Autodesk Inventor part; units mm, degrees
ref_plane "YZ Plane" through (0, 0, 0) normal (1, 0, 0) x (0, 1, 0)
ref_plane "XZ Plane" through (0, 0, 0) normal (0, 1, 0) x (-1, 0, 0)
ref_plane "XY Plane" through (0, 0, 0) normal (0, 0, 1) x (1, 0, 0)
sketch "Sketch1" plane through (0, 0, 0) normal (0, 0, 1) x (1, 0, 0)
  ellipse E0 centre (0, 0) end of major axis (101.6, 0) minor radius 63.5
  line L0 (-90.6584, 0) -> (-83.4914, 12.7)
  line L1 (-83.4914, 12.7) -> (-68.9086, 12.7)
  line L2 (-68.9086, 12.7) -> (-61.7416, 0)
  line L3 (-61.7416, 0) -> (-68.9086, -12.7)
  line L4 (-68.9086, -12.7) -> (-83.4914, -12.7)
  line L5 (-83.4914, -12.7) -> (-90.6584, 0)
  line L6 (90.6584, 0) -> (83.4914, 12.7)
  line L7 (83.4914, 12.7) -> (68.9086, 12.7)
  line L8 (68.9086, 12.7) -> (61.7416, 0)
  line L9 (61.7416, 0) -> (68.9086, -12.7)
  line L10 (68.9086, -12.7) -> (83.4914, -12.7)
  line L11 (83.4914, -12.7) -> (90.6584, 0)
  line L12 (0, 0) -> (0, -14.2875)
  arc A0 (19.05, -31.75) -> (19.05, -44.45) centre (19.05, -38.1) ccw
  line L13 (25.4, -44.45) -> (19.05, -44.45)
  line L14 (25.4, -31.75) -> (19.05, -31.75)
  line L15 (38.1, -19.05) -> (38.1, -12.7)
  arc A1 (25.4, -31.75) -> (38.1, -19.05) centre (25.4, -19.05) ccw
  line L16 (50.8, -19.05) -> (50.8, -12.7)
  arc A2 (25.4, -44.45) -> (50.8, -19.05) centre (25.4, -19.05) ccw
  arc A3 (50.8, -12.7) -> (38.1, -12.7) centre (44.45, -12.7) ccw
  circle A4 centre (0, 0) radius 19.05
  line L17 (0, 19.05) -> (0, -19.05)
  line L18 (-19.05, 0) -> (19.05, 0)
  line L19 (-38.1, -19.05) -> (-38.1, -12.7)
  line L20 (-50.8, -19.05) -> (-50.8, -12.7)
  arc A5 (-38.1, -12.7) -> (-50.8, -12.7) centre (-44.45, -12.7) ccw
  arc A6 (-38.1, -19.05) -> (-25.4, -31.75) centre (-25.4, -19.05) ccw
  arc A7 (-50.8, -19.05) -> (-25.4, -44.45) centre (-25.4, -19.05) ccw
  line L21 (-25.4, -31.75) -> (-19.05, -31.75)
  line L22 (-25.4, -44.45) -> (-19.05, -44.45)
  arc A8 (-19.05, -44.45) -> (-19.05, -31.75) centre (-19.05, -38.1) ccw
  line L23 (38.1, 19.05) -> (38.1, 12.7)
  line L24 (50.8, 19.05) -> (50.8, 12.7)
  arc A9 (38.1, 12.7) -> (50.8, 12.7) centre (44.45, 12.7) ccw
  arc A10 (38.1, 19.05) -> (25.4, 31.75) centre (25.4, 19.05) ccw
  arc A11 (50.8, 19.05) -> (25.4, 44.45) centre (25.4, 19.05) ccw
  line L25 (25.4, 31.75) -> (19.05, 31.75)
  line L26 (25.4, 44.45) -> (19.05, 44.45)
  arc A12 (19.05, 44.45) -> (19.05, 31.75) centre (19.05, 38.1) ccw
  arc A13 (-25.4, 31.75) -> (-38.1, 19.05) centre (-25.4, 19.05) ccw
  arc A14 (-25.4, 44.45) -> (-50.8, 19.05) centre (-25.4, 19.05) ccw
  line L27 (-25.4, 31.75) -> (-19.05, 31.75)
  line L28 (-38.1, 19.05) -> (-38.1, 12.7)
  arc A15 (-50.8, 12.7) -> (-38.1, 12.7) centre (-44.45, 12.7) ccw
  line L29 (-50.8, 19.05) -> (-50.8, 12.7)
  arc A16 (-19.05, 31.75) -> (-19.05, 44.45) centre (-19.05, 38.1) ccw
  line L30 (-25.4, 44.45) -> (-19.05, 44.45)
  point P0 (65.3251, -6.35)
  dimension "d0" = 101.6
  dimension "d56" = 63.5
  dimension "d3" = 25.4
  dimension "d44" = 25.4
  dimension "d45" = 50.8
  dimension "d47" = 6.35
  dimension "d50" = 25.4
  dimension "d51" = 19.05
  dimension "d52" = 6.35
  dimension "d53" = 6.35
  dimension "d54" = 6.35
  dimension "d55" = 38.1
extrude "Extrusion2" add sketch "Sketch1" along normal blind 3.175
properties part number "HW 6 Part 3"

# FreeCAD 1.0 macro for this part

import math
import FreeCAD as App
import Part
import Sketcher
from FreeCAD import Vector
Q = App.Units.Quantity

doc = App.newDocument("Part")
params = doc.addObject("Spreadsheet::Sheet", "Params")
for row, (alias, value) in enumerate([
    ("sketch1_radius", "1 in"),
    ("sketch1_diameter", "1.5 in"),
    ("sketch1_radius2", "0.5 in"),
    ("sketch1_width", "0.25 in"),
    ("pad1_length", "0.125 in"),
], start=1):
    params.set(f"A{row}", alias)
    params.set(f"B{row}", "=" + value)
    params.setAlias(f"B{row}", alias)

body = doc.addObject("PartDesign::Body", "Body")

# Sketch on XY plane
sketch1 = body.newObject("Sketcher::SketchObject", "Sketch")
sketch1.AttachmentSupport = (doc.getObject("XY_Plane"), [""])
sketch1.MapMode = "FlatFace"
sketch1.addGeometry([
    Part.Ellipse(Vector(101.6, 0, 0), Vector(0, 63.5, 0), Vector(0, 0, 0)),  # 0
    Part.LineSegment(Vector(-38.1, -12.7, 0), Vector(-38.1, -19.05, 0)),  # 1
    Part.ArcOfCircle(Part.Circle(Vector(-25.4, -19.05, 0), Vector(0, 0, 1), 12.7), math.radians(180), math.radians(270)),  # 2
    Part.LineSegment(Vector(-25.4, -31.75, 0), Vector(-19.05, -31.75, 0)),  # 3
    Part.ArcOfCircle(Part.Circle(Vector(-19.05, -38.1, 0), Vector(0, 0, 1), 6.35), math.radians(-90), math.radians(90)),  # 4
    Part.LineSegment(Vector(-19.05, -44.45, 0), Vector(-25.4, -44.45, 0)),  # 5
    Part.ArcOfCircle(Part.Circle(Vector(-25.4, -19.05, 0), Vector(0, 0, 1), 25.4), math.radians(180), math.radians(270)),  # 6
    Part.LineSegment(Vector(-50.8, -19.05, 0), Vector(-50.8, -12.7, 0)),  # 7
    Part.ArcOfCircle(Part.Circle(Vector(-44.45, -12.7, 0), Vector(0, 0, 1), 6.35), math.radians(0), math.radians(180)),  # 8
    Part.ArcOfCircle(Part.Circle(Vector(19.05, -38.1, 0), Vector(0, 0, 1), 6.35), math.radians(90), math.radians(270)),  # 9
    Part.LineSegment(Vector(19.05, -31.75, 0), Vector(25.4, -31.75, 0)),  # 10
    Part.ArcOfCircle(Part.Circle(Vector(25.4, -19.05, 0), Vector(0, 0, 1), 12.7), math.radians(-90), math.radians(0)),  # 11
    Part.LineSegment(Vector(38.1, -19.05, 0), Vector(38.1, -12.7, 0)),  # 12
    Part.ArcOfCircle(Part.Circle(Vector(44.45, -12.7, 0), Vector(0, 0, 1), 6.35), math.radians(0), math.radians(180)),  # 13
    Part.LineSegment(Vector(50.8, -12.7, 0), Vector(50.8, -19.05, 0)),  # 14
    Part.ArcOfCircle(Part.Circle(Vector(25.4, -19.05, 0), Vector(0, 0, 1), 25.4), math.radians(-90), math.radians(0)),  # 15
    Part.LineSegment(Vector(25.4, -44.45, 0), Vector(19.05, -44.45, 0)),  # 16
    Part.LineSegment(Vector(-83.4914, -12.7, 0), Vector(-90.6584, 0, 0)),  # 17
    Part.LineSegment(Vector(-90.6584, 0, 0), Vector(-83.4914, 12.7, 0)),  # 18
    Part.LineSegment(Vector(-83.4914, 12.7, 0), Vector(-68.9086, 12.7, 0)),  # 19
    Part.LineSegment(Vector(-68.9086, 12.7, 0), Vector(-61.7416, 0, 0)),  # 20
    Part.LineSegment(Vector(-61.7416, 0, 0), Vector(-68.9086, -12.7, 0)),  # 21
    Part.LineSegment(Vector(-68.9086, -12.7, 0), Vector(-83.4914, -12.7, 0)),  # 22
    Part.Circle(Vector(0, 0, 0), Vector(0, 0, 1), 19.05),  # 23
    Part.LineSegment(Vector(-19.05, 31.75, 0), Vector(-25.4, 31.75, 0)),  # 24
    Part.ArcOfCircle(Part.Circle(Vector(-25.4, 19.05, 0), Vector(0, 0, 1), 12.7), math.radians(90), math.radians(180)),  # 25
    Part.LineSegment(Vector(-38.1, 19.05, 0), Vector(-38.1, 12.7, 0)),  # 26
    Part.ArcOfCircle(Part.Circle(Vector(-44.45, 12.7, 0), Vector(0, 0, 1), 6.35), math.radians(180), math.radians(360)),  # 27
    Part.LineSegment(Vector(-50.8, 12.7, 0), Vector(-50.8, 19.05, 0)),  # 28
    Part.ArcOfCircle(Part.Circle(Vector(-25.4, 19.05, 0), Vector(0, 0, 1), 25.4), math.radians(90), math.radians(180)),  # 29
    Part.LineSegment(Vector(-25.4, 44.45, 0), Vector(-19.05, 44.45, 0)),  # 30
    Part.ArcOfCircle(Part.Circle(Vector(-19.05, 38.1, 0), Vector(0, 0, 1), 6.35), math.radians(-90), math.radians(90)),  # 31
    Part.LineSegment(Vector(38.1, 12.7, 0), Vector(38.1, 19.05, 0)),  # 32
    Part.ArcOfCircle(Part.Circle(Vector(25.4, 19.05, 0), Vector(0, 0, 1), 12.7), math.radians(0), math.radians(90)),  # 33
    Part.LineSegment(Vector(25.4, 31.75, 0), Vector(19.05, 31.75, 0)),  # 34
    Part.ArcOfCircle(Part.Circle(Vector(19.05, 38.1, 0), Vector(0, 0, 1), 6.35), math.radians(90), math.radians(270)),  # 35
    Part.LineSegment(Vector(19.05, 44.45, 0), Vector(25.4, 44.45, 0)),  # 36
    Part.ArcOfCircle(Part.Circle(Vector(25.4, 19.05, 0), Vector(0, 0, 1), 25.4), math.radians(0), math.radians(90)),  # 37
    Part.LineSegment(Vector(50.8, 19.05, 0), Vector(50.8, 12.7, 0)),  # 38
    Part.ArcOfCircle(Part.Circle(Vector(44.45, 12.7, 0), Vector(0, 0, 1), 6.35), math.radians(180), math.radians(360)),  # 39
    Part.LineSegment(Vector(83.4914, 12.7, 0), Vector(90.6584, 0, 0)),  # 40
    Part.LineSegment(Vector(90.6584, 0, 0), Vector(83.4914, -12.7, 0)),  # 41
    Part.LineSegment(Vector(83.4914, -12.7, 0), Vector(68.9086, -12.7, 0)),  # 42
    Part.LineSegment(Vector(68.9086, -12.7, 0), Vector(61.7416, 0, 0)),  # 43
    Part.LineSegment(Vector(61.7416, 0, 0), Vector(68.9086, 12.7, 0)),  # 44
    Part.LineSegment(Vector(68.9086, 12.7, 0), Vector(83.4914, 12.7, 0)),  # 45
], False)
sketch1.addConstraint([
    Sketcher.Constraint("Block", 0),
    Sketcher.Constraint("Tangent", 1, 2, 2, 1),
    Sketcher.Constraint("Tangent", 2, 2, 3, 1),
    Sketcher.Constraint("Tangent", 3, 2, 4, 2),
    Sketcher.Constraint("Tangent", 4, 1, 5, 1),
    Sketcher.Constraint("Tangent", 5, 2, 6, 2),
    Sketcher.Constraint("Tangent", 6, 1, 7, 1),
    Sketcher.Constraint("Tangent", 7, 2, 8, 2),
    Sketcher.Constraint("Tangent", 8, 1, 1, 1),
    Sketcher.Constraint("Tangent", 9, 1, 10, 1),
    Sketcher.Constraint("Tangent", 10, 2, 11, 1),
    Sketcher.Constraint("Tangent", 11, 2, 12, 1),
    Sketcher.Constraint("Tangent", 12, 2, 13, 2),
    Sketcher.Constraint("Tangent", 13, 1, 14, 1),
    Sketcher.Constraint("Tangent", 14, 2, 15, 2),
    Sketcher.Constraint("Tangent", 15, 1, 16, 1),
    Sketcher.Constraint("Tangent", 16, 2, 9, 2),
    Sketcher.Constraint("Coincident", 17, 2, 18, 1),
    Sketcher.Constraint("Coincident", 18, 2, 19, 1),
    Sketcher.Constraint("Coincident", 19, 2, 20, 1),
    Sketcher.Constraint("Coincident", 20, 2, 21, 1),
    Sketcher.Constraint("Coincident", 21, 2, 22, 1),
    Sketcher.Constraint("Coincident", 22, 2, 17, 1),
    Sketcher.Constraint("Tangent", 24, 2, 25, 1),
    Sketcher.Constraint("Tangent", 25, 2, 26, 1),
    Sketcher.Constraint("Tangent", 26, 2, 27, 2),
    Sketcher.Constraint("Tangent", 27, 1, 28, 1),
    Sketcher.Constraint("Tangent", 28, 2, 29, 2),
    Sketcher.Constraint("Tangent", 29, 1, 30, 1),
    Sketcher.Constraint("Tangent", 30, 2, 31, 2),
    Sketcher.Constraint("Tangent", 31, 1, 24, 1),
    Sketcher.Constraint("Tangent", 32, 2, 33, 1),
    Sketcher.Constraint("Tangent", 33, 2, 34, 1),
    Sketcher.Constraint("Tangent", 34, 2, 35, 2),
    Sketcher.Constraint("Tangent", 35, 1, 36, 1),
    Sketcher.Constraint("Tangent", 36, 2, 37, 2),
    Sketcher.Constraint("Tangent", 37, 1, 38, 1),
    Sketcher.Constraint("Tangent", 38, 2, 39, 2),
    Sketcher.Constraint("Tangent", 39, 1, 32, 1),
    Sketcher.Constraint("Coincident", 40, 2, 41, 1),
    Sketcher.Constraint("Coincident", 41, 2, 42, 1),
    Sketcher.Constraint("Coincident", 42, 2, 43, 1),
    Sketcher.Constraint("Coincident", 43, 2, 44, 1),
    Sketcher.Constraint("Coincident", 44, 2, 45, 1),
    Sketcher.Constraint("Coincident", 45, 2, 40, 1),
    Sketcher.Constraint("Vertical", 1),
    Sketcher.Constraint("Horizontal", 3),
    Sketcher.Constraint("Horizontal", 5),
    Sketcher.Constraint("Vertical", 7),
    Sketcher.Constraint("Horizontal", 10),
    Sketcher.Constraint("Vertical", 12),
    Sketcher.Constraint("Vertical", 14),
    Sketcher.Constraint("Horizontal", 16),
    Sketcher.Constraint("Horizontal", 19),
    Sketcher.Constraint("Horizontal", 22),
    Sketcher.Constraint("Horizontal", 24),
    Sketcher.Constraint("Vertical", 26),
    Sketcher.Constraint("Vertical", 28),
    Sketcher.Constraint("Horizontal", 30),
    Sketcher.Constraint("Vertical", 32),
    Sketcher.Constraint("Horizontal", 34),
    Sketcher.Constraint("Horizontal", 36),
    Sketcher.Constraint("Vertical", 38),
    Sketcher.Constraint("Horizontal", 42),
    Sketcher.Constraint("Horizontal", 45),
    Sketcher.Constraint("Coincident", 23, 3, -1, 1),
    Sketcher.Constraint("Coincident", 6, 3, 2, 3),
    Sketcher.Constraint("Coincident", 15, 3, 11, 3),
    Sketcher.Constraint("Coincident", 29, 3, 25, 3),
    Sketcher.Constraint("Coincident", 37, 3, 33, 3),
    Sketcher.Constraint("Equal", 8, 9),
    Sketcher.Constraint("Equal", 2, 11),
    Sketcher.Constraint("Equal", 11, 25),
    Sketcher.Constraint("Equal", 13, 27),
    Sketcher.Constraint("Equal", 25, 33),
    Sketcher.Constraint("Equal", 31, 35),
    Sketcher.Constraint("Symmetric", 11, 3, 25, 3, -1, 1),
    Sketcher.Constraint("Symmetric", 2, 3, 33, 3, -1, 1),
    Sketcher.Constraint("Symmetric", 17, 2, 40, 2, -1, 1),
    Sketcher.Constraint("Symmetric", 18, 2, 41, 2, -1, 1),
    Sketcher.Constraint("Symmetric", 20, 2, 43, 2, -1, 1),
    Sketcher.Constraint("Symmetric", 21, 2, 44, 2, -1, 1),
    Sketcher.Constraint("Symmetric", 4, 3, 9, 3, -2),
    Sketcher.Constraint("Symmetric", 8, 3, 13, 3, -2),
    Sketcher.Constraint("Symmetric", 22, 2, 41, 2, -2),
    Sketcher.Constraint("PointOnObject", 17, 2, -1),
    Sketcher.Constraint("PointOnObject", 20, 2, -1),
    Sketcher.Constraint("Parallel", 17, 20),
    Sketcher.Constraint("Parallel", 18, 21),
    Sketcher.Constraint("Parallel", 20, 40),
    Sketcher.Constraint("Parallel", 40, 43),
    Sketcher.Constraint("Horizontal", 27, 3, 39, 3),
    Sketcher.Constraint("Horizontal", 39, 3, 18, 2),
    Sketcher.Constraint("Horizontal", 13, 1, 21, 2),
    Sketcher.Constraint("Vertical", 4, 3, 31, 3),
    Sketcher.Constraint("Vertical", 9, 3, 35, 3),
    Sketcher.Constraint("Equal", 36, 1),
    Sketcher.Constraint("Radius", 6, Q("1 in")),
    Sketcher.Constraint("Diameter", 23, Q("1.5 in")),
    Sketcher.Constraint("Radius", 2, Q("0.5 in")),
    Sketcher.Constraint("DistanceX", 2, 3, -1, 1, Q("1 in")),
    Sketcher.Constraint("DistanceX", 3, 1, 3, 2, Q("0.25 in")),
    Sketcher.Constraint("DistanceY", 4, 3, -1, 1, Q("1.5 in")),
    Sketcher.Constraint("DistanceX", 19, 1, 19, 2, 14.5828),
    Sketcher.Constraint("Distance", 17, 14.5827),
    Sketcher.Constraint("DistanceX", 17, 2, -1, 1, 90.6584),
])
sketch1.setExpression("Constraints[97]", "Params.sketch1_radius")
sketch1.setExpression("Constraints[98]", "Params.sketch1_diameter")
sketch1.setExpression("Constraints[99]", "Params.sketch1_radius2")
sketch1.setExpression("Constraints[101]", "Params.sketch1_width")
pad1 = body.newObject("PartDesign::Pad", "Pad")
pad1.Profile = sketch1
pad1.setExpression("Length", "Params.pad1_length")

doc.recompute()
